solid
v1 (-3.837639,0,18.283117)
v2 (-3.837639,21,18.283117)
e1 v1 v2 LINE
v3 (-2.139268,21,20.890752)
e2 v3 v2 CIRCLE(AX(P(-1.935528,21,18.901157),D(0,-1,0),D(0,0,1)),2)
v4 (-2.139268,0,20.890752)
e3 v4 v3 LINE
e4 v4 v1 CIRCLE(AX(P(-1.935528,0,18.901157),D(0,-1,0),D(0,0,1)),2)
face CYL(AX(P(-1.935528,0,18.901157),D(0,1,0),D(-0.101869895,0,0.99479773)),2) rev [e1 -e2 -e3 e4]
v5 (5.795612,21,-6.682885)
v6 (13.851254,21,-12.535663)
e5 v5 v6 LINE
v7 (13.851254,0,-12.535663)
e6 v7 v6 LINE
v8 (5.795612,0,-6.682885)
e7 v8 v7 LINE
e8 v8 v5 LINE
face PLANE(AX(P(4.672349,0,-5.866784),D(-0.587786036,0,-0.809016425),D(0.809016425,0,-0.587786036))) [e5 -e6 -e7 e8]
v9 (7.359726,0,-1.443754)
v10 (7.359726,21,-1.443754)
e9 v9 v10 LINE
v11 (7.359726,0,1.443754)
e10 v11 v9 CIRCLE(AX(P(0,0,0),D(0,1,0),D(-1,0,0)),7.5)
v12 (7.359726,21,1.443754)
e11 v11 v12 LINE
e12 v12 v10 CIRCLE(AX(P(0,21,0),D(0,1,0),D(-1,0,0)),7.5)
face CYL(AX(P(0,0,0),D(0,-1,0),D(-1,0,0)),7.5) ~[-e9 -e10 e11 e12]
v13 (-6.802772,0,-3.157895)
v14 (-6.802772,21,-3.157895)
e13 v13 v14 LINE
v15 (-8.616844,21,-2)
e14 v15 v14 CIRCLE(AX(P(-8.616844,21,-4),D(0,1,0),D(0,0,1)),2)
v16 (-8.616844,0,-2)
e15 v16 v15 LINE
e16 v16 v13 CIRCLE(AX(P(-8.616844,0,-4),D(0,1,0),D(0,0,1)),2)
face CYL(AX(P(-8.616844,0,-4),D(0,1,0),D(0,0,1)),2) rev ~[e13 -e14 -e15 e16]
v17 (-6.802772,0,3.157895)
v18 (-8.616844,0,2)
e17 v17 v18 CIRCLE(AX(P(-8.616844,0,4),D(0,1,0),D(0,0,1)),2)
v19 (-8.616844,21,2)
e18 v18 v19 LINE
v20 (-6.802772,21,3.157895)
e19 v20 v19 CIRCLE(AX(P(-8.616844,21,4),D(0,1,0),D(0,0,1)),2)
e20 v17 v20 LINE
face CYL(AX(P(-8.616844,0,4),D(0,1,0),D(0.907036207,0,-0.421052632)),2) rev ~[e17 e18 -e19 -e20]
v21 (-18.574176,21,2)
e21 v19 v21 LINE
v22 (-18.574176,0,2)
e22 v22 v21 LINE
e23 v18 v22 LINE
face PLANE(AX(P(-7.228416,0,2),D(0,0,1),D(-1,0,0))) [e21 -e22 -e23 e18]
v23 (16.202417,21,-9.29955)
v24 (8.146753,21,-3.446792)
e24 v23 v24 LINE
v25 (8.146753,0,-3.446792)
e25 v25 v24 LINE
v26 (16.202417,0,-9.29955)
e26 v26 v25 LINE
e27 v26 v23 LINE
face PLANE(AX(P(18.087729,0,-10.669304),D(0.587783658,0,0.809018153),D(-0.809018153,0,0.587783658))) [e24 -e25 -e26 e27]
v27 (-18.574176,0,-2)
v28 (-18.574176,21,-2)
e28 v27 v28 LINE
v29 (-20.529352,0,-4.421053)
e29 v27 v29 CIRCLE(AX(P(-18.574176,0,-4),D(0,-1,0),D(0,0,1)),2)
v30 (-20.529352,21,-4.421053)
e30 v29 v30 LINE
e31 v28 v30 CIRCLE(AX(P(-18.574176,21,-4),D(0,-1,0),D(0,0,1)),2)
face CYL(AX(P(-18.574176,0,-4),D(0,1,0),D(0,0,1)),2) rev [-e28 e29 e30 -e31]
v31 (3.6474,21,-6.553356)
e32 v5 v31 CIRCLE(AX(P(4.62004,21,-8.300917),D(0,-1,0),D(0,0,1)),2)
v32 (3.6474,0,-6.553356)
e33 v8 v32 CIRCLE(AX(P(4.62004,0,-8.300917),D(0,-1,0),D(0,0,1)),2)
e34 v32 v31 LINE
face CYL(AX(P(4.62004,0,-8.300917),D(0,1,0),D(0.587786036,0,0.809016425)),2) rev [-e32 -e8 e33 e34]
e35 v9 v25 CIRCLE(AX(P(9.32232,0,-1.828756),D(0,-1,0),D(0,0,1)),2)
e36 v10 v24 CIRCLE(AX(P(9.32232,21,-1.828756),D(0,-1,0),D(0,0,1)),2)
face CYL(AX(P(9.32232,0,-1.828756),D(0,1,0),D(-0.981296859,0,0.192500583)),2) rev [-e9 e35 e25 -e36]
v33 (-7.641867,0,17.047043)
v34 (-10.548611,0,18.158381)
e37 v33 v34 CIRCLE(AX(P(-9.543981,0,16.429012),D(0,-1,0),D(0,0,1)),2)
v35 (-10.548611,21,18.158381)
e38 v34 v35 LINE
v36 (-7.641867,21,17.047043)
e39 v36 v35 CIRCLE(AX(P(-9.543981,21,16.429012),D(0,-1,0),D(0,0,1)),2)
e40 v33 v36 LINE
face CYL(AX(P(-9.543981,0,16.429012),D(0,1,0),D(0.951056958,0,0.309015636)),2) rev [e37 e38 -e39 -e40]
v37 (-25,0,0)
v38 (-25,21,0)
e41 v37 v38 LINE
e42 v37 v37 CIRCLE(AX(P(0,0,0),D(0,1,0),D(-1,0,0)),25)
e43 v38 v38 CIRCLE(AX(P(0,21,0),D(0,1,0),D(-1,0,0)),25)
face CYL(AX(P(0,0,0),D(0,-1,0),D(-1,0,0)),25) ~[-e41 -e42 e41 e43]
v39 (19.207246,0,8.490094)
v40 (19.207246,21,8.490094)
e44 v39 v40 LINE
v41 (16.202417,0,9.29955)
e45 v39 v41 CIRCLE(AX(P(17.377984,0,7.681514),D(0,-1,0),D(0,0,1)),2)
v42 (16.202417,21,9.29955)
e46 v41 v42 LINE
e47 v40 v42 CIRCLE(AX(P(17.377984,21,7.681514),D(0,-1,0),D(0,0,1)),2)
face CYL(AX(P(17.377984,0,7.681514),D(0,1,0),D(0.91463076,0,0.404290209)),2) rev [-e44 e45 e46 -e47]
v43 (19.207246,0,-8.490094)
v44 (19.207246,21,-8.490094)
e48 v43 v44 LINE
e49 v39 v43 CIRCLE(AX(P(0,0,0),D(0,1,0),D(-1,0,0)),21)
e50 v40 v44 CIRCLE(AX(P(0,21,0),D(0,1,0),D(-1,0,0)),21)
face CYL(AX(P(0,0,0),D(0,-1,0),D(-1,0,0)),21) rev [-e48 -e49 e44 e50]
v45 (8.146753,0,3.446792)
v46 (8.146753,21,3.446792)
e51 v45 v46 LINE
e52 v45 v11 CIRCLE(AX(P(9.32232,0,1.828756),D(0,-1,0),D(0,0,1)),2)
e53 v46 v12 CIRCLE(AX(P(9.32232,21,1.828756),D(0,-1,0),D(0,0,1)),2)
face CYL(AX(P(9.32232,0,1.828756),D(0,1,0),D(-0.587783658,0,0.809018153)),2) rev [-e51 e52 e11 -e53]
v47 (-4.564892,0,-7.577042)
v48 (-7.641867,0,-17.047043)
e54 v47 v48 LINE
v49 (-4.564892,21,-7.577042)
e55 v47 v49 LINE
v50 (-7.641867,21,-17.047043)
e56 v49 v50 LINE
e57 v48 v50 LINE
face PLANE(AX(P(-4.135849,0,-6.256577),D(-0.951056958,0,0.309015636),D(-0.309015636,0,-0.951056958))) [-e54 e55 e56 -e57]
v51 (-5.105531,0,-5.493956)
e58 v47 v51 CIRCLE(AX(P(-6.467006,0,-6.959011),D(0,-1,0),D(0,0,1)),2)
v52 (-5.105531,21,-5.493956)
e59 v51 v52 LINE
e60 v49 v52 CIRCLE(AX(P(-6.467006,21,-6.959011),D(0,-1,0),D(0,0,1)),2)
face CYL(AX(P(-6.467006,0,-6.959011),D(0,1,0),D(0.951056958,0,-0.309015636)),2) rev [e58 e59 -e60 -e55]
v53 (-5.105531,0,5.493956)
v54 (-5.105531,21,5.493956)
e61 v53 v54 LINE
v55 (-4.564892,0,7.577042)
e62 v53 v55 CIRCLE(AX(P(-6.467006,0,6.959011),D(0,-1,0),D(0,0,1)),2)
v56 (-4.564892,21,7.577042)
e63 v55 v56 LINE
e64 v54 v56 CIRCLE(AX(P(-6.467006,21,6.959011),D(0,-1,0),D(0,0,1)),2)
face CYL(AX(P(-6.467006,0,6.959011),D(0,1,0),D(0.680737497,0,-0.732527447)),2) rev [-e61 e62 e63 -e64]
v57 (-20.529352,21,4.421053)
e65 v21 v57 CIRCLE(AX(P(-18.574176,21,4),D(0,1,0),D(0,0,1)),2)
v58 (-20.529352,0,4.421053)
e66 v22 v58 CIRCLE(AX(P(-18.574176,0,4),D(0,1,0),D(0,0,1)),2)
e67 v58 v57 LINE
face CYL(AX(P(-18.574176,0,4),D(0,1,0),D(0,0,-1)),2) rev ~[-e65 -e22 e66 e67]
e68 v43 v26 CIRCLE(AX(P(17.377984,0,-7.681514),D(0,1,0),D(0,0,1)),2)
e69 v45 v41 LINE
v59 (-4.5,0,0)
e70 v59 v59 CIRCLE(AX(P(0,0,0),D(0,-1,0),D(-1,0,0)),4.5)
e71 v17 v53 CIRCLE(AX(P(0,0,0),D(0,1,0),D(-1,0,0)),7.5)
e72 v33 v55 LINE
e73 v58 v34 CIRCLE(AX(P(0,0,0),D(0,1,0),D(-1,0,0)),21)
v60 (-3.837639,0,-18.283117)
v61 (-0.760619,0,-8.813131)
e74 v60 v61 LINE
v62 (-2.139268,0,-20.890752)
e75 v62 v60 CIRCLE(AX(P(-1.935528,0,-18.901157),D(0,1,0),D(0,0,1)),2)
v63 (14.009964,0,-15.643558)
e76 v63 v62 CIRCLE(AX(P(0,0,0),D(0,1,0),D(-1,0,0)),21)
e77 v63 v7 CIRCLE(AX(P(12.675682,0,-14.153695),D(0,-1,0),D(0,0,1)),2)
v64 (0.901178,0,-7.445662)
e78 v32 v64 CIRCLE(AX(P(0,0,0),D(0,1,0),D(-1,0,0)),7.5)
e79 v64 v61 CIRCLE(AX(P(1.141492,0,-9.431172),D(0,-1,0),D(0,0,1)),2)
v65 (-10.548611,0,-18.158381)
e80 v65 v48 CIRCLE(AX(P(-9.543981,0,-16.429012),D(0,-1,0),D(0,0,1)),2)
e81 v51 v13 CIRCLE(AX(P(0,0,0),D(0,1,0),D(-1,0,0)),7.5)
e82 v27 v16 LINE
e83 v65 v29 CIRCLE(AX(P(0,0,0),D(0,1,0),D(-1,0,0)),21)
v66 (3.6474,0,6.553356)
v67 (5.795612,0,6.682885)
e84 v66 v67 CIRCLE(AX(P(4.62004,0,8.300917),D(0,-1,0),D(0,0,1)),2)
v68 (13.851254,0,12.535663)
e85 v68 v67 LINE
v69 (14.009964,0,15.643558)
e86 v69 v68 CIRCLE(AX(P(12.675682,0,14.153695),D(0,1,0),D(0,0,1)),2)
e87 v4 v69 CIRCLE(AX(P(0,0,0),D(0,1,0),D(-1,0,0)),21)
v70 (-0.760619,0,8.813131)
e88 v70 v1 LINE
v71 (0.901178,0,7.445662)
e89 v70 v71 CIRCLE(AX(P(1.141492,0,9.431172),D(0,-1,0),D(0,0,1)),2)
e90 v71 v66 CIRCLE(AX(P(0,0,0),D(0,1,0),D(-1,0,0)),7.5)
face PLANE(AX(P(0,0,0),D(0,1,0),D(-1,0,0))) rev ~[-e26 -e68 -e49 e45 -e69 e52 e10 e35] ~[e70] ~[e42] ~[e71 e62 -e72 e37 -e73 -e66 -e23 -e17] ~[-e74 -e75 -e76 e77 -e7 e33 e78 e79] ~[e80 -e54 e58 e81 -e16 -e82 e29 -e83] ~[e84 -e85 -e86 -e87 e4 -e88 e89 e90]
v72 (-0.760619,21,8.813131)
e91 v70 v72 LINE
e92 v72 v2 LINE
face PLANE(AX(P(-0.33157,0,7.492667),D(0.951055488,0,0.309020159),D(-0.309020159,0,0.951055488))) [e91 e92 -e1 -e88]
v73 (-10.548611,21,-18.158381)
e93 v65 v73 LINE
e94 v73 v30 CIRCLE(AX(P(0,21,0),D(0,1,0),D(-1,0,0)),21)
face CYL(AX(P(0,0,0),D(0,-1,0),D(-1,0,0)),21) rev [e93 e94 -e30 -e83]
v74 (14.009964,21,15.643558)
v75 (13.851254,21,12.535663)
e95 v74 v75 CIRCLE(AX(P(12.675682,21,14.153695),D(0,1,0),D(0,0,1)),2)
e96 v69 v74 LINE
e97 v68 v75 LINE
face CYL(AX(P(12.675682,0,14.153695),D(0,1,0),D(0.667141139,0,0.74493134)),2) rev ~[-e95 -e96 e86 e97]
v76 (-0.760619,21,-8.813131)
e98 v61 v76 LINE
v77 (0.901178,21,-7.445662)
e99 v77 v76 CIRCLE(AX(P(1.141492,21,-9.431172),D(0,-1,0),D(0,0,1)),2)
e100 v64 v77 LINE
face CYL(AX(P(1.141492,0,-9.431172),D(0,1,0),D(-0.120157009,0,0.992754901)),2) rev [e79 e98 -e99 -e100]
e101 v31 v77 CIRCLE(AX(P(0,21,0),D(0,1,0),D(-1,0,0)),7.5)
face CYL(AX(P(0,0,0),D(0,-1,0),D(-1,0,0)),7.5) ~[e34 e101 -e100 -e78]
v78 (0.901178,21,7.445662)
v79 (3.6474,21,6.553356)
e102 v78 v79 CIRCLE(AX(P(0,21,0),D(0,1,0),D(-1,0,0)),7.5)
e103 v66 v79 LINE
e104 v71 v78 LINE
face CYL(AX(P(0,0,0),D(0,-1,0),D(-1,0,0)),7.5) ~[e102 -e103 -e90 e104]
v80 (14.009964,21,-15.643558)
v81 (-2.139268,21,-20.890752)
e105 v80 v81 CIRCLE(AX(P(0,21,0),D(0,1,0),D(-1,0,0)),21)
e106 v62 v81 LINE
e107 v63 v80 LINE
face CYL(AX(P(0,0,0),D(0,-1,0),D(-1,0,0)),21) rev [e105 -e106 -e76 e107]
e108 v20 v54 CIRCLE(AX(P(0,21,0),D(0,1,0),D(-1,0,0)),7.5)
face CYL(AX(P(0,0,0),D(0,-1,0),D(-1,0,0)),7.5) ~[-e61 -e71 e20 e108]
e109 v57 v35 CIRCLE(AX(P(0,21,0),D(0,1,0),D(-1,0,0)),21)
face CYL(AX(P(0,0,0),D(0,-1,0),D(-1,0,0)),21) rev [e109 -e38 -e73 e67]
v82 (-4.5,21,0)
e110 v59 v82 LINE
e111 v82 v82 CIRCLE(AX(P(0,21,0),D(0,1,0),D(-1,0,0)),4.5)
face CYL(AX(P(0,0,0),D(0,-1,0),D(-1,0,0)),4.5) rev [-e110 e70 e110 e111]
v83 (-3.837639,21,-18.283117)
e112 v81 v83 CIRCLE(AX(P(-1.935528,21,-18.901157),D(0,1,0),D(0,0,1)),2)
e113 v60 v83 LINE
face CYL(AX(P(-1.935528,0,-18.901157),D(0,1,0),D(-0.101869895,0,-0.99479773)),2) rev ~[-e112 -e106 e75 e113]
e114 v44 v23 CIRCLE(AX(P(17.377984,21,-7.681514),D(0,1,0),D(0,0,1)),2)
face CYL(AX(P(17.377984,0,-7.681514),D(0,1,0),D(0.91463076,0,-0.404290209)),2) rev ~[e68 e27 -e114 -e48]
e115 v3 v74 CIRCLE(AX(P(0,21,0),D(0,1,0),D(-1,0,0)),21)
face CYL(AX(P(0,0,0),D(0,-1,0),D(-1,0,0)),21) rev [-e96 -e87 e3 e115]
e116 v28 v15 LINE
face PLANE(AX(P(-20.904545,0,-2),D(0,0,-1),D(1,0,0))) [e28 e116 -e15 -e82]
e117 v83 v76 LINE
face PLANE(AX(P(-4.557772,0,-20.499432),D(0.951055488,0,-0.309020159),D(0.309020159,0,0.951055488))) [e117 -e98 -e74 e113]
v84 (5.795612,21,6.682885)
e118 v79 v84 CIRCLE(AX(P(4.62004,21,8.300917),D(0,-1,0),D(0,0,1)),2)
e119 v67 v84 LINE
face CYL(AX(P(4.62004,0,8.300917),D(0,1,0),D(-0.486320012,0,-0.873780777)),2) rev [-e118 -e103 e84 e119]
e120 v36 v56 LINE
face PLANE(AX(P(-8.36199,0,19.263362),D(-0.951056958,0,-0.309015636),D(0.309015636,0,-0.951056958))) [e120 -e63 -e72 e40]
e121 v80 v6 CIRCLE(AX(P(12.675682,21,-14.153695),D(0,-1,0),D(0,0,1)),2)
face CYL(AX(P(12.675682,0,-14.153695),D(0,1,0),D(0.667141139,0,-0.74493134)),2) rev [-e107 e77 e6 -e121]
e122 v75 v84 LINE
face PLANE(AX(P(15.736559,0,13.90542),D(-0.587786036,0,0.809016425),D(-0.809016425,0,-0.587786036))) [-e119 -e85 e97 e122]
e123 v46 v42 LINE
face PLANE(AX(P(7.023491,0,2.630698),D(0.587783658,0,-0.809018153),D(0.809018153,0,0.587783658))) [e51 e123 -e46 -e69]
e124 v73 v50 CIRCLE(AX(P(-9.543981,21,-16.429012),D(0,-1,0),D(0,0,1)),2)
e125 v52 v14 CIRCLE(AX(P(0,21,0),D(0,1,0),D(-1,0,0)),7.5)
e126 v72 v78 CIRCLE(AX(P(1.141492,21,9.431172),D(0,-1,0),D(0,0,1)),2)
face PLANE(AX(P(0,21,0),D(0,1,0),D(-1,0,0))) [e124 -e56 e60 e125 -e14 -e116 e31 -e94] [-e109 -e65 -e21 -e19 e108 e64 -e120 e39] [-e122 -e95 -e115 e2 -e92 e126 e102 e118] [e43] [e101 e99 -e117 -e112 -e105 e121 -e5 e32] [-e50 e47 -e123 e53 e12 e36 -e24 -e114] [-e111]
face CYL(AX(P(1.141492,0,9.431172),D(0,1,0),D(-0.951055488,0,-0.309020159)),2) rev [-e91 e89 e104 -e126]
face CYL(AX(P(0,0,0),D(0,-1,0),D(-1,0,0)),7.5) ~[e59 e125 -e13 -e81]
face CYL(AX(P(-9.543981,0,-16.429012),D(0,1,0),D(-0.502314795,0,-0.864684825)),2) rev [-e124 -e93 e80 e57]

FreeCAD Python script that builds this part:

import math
import FreeCAD as App
import Part
import Sketcher
from FreeCAD import Vector
Q = App.Units.Quantity


def edges_at(feature, points):
    """Names of the edges that pass closest to the given points."""
    edges = feature.Shape.Edges
    near = lambda p: min(range(len(edges)), key=lambda i: edges[i].distToShape(Part.Vertex(*p))[0])
    return sorted({f"Edge{near(p) + 1}" for p in points})

doc = App.newDocument("Part")
body = doc.addObject("PartDesign::Body", "Body")

sketch1 = body.newObject("Sketcher::SketchObject", "Sketch")
sketch1.AttachmentSupport = (doc.getObject("XZ_Plane"), [""])
sketch1.MapMode = "FlatFace"
sketch1.addGeometry([
    Part.Circle(Vector(0, 0, 0), Vector(0, 0, 1), 25),
    Part.Circle(Vector(0, 0, 0), Vector(0, 0, 1), 4.5),
    Part.LineSegment(Vector(-7.2, -2, 0), Vector(-20.9, -2, 0)),
    Part.ArcOfCircle(Part.Circle(Vector(0, 0, 0), Vector(0, 0, 1), 21), math.radians(-175), math.radians(-113)),
    Part.LineSegment(Vector(-8.4, -19.3, 0), Vector(-4.1, -6.3, 0)),
    Part.ArcOfCircle(Part.Circle(Vector(0, 0, 0), Vector(0, 0, 1), 7.5), math.radians(-165), math.radians(-123)),
    Part.ArcOfCircle(Part.Circle(Vector(0, 0, 0), Vector(0, 0, 1), 7.5), math.radians(123), math.radians(165)),
    Part.LineSegment(Vector(-4.1, 6.3, 0), Vector(-8.4, 19.3, 0)),
    Part.ArcOfCircle(Part.Circle(Vector(0, 0, 0), Vector(0, 0, 1), 21), math.radians(113), math.radians(175)),
    Part.LineSegment(Vector(-20.9, 2, 0), Vector(-7.2, 2, 0)),
    Part.ArcOfCircle(Part.Circle(Vector(0, 0, 0), Vector(0, 0, 1), 21), math.radians(41), math.radians(103)),
    Part.LineSegment(Vector(-4.6, 20.5, 0), Vector(-0.3, 7.5, 0)),
    Part.ArcOfCircle(Part.Circle(Vector(0, 0, 0), Vector(0, 0, 1), 7.5), math.radians(51), math.radians(93)),
    Part.LineSegment(Vector(4.7, 5.9, 0), Vector(15.7, 13.9, 0)),
    Part.ArcOfCircle(Part.Circle(Vector(0, 0, 0), Vector(0, 0, 1), 21), math.radians(-31), math.radians(31)),
    Part.LineSegment(Vector(18.1, 10.7, 0), Vector(7, 2.6, 0)),
    Part.ArcOfCircle(Part.Circle(Vector(0, 0, 0), Vector(0, 0, 1), 7.5), math.radians(-21), math.radians(21)),
    Part.LineSegment(Vector(7, -2.6, 0), Vector(18.1, -10.7, 0)),
    Part.ArcOfCircle(Part.Circle(Vector(0, 0, 0), Vector(0, 0, 1), 21), math.radians(-103), math.radians(-41)),
    Part.LineSegment(Vector(15.7, -13.9, 0), Vector(4.7, -5.9, 0)),
    Part.ArcOfCircle(Part.Circle(Vector(0, 0, 0), Vector(0, 0, 1), 7.5), math.radians(-93), math.radians(-51)),
    Part.LineSegment(Vector(-0.3, -7.5, 0), Vector(-4.6, -20.5, 0)),
], False)
sketch1.addConstraint([
    Sketcher.Constraint("Coincident", 2, 2, 3, 1),
    Sketcher.Constraint("Coincident", 3, 2, 4, 1),
    Sketcher.Constraint("Coincident", 4, 2, 5, 2),
    Sketcher.Constraint("Coincident", 5, 1, 2, 1),
    Sketcher.Constraint("Coincident", 6, 1, 7, 1),
    Sketcher.Constraint("Coincident", 7, 2, 8, 1),
    Sketcher.Constraint("Coincident", 8, 2, 9, 1),
    Sketcher.Constraint("Coincident", 9, 2, 6, 2),
    Sketcher.Constraint("Coincident", 10, 2, 11, 1),
    Sketcher.Constraint("Coincident", 11, 2, 12, 2),
    Sketcher.Constraint("Coincident", 12, 1, 13, 1),
    Sketcher.Constraint("Coincident", 13, 2, 10, 1),
    Sketcher.Constraint("Coincident", 14, 2, 15, 1),
    Sketcher.Constraint("Coincident", 15, 2, 16, 2),
    Sketcher.Constraint("Coincident", 16, 1, 17, 1),
    Sketcher.Constraint("Coincident", 17, 2, 14, 1),
    Sketcher.Constraint("Coincident", 18, 2, 19, 1),
    Sketcher.Constraint("Coincident", 19, 2, 20, 2),
    Sketcher.Constraint("Coincident", 20, 1, 21, 1),
    Sketcher.Constraint("Coincident", 21, 2, 18, 1),
    Sketcher.Constraint("Horizontal", 2),
    Sketcher.Constraint("Horizontal", 9),
    Sketcher.Constraint("Coincident", 0, 3, -1, 1),
    Sketcher.Constraint("Coincident", 1, 3, -1, 1),
    Sketcher.Constraint("Coincident", 3, 3, -1, 1),
    Sketcher.Constraint("Coincident", 5, 3, -1, 1),
    Sketcher.Constraint("Coincident", 6, 3, -1, 1),
    Sketcher.Constraint("Coincident", 8, 3, -1, 1),
    Sketcher.Constraint("Coincident", 10, 3, -1, 1),
    Sketcher.Constraint("Coincident", 12, 3, -1, 1),
    Sketcher.Constraint("Coincident", 14, 3, -1, 1),
    Sketcher.Constraint("Coincident", 16, 3, -1, 1),
    Sketcher.Constraint("Coincident", 18, 3, -1, 1),
    Sketcher.Constraint("Coincident", 20, 3, -1, 1),
    Sketcher.Constraint("Equal", 5, 6),
    Sketcher.Constraint("Equal", 3, 8),
    Sketcher.Constraint("Equal", 8, 10),
    Sketcher.Constraint("Equal", 6, 12),
    Sketcher.Constraint("Equal", 10, 14),
    Sketcher.Constraint("Equal", 12, 16),
    Sketcher.Constraint("Equal", 14, 18),
    Sketcher.Constraint("Equal", 16, 20),
    Sketcher.Constraint("Parallel", 7, 11),
    Sketcher.Constraint("Parallel", 13, 15),
    Sketcher.Constraint("Parallel", 17, 19),
    Sketcher.Constraint("Parallel", 4, 21),
    Sketcher.Constraint("Vertical", 4, 2, 6, 1),
    Sketcher.Constraint("Vertical", 3, 2, 7, 2),
    Sketcher.Constraint("Vertical", 2, 2, 8, 2),
    Sketcher.Constraint("Vertical", 15, 2, 16, 1),
    Sketcher.Constraint("Vertical", 14, 2, 17, 2),
    Sketcher.Constraint("Vertical", 13, 2, 18, 2),
    Sketcher.Constraint("Vertical", 11, 2, 20, 1),
    Sketcher.Constraint("Equal", 7, 11),
    Sketcher.Constraint("Equal", 11, 13),
    Sketcher.Constraint("Equal", 13, 15),
    Sketcher.Constraint("Diameter", 0, Q("50 mm")),
    Sketcher.Constraint("Diameter", 1, Q("9 mm")),
    Sketcher.Constraint("Radius", 3, Q("21 mm")),
    Sketcher.Constraint("DistanceY", 2, 2, 8, 2, Q("4 mm")),
    Sketcher.Constraint("Radius", 5, Q("7.5 mm")),
    Sketcher.Constraint("Angle", 4, Q("72 deg")),
    Sketcher.Constraint("Angle", 13, Q("36 deg")),
    Sketcher.Constraint("DistanceY", 17, 2, 15, 2, Q("13.3 mm")),
])
pad1 = body.newObject("PartDesign::Pad", "Pad")
pad1.Profile = sketch1
pad1.Length = 21
pad1.Reversed = True
doc.recompute()

fillet = body.newObject("PartDesign::Fillet", "Fillet")
fillet.Base = (pad1, edges_at(pad1, [
    (-8.362, 10.5, 19.263),
    (-20.904, 10.5, 2),
    (-7.228, 10.5, 2),
    (-4.136, 10.5, 6.257),
]))
fillet.Radius = 2
doc.recompute()

polarpattern = body.newObject("PartDesign::PolarPattern", "PolarPattern")
polarpattern.Originals = [fillet]
polarpattern.Axis = (doc.getObject("Y_Axis"), [""])
polarpattern.Angle = 360
polarpattern.Occurrences = 5
body.Tip = polarpattern

doc.recompute()
